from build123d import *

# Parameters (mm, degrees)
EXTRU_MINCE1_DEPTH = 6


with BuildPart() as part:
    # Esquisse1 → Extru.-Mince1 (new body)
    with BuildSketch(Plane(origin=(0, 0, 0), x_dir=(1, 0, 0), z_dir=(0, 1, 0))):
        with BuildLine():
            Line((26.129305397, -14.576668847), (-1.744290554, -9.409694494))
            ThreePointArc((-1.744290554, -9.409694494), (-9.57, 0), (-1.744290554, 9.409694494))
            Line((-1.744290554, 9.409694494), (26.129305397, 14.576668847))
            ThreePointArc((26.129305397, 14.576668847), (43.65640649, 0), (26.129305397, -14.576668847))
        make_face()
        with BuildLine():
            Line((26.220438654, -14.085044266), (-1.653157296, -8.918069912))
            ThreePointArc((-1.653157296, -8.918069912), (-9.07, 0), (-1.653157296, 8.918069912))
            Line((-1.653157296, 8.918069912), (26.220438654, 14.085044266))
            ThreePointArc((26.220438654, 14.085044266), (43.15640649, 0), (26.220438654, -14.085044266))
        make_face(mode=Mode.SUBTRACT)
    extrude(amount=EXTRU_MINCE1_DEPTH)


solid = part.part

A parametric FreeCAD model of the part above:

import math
import FreeCAD as App
import Part
import Sketcher

doc = App.newDocument("Part")
body = doc.addObject("PartDesign::Body", "Body")

sketch1 = doc.addObject("Sketcher::SketchObject", "Sketch")
body.addObject(sketch1)
sketch1.AttachmentSupport = (doc.XZ_Plane, [""])
sketch1.MapMode = "FlatFace"
sketch1.addGeometry([
    Part.LineSegment(App.Vector(-2, 9, 0), App.Vector(26, 15, 0)),
    Part.ArcOfCircle(Part.Circle(App.Vector(29, 0, 0), App.Vector(0, 0, 1), 15), math.radians(-101), math.radians(101)),
    Part.LineSegment(App.Vector(26, -15, 0), App.Vector(-2, -9, 0)),
    Part.ArcOfCircle(Part.Circle(App.Vector(0, 0, 0), App.Vector(0, 0, 1), 10), math.radians(101), math.radians(259)),
    Part.LineSegment(App.Vector(26, 14, 0), App.Vector(-2, 9, 0)),
    Part.ArcOfCircle(Part.Circle(App.Vector(0, 0, 0), App.Vector(0, 0, 1), 9), math.radians(101), math.radians(259)),
    Part.LineSegment(App.Vector(-2, -9, 0), App.Vector(26, -14, 0)),
    Part.ArcOfCircle(Part.Circle(App.Vector(29, 0, 0), App.Vector(0, 0, 1), 14), math.radians(-101), math.radians(101)),
], False)
sketch1.addConstraint([
    Sketcher.Constraint("Tangent", 0, 2, 1, 2),
    Sketcher.Constraint("Tangent", 1, 1, 2, 1),
    Sketcher.Constraint("Tangent", 2, 2, 3, 2),
    Sketcher.Constraint("Tangent", 3, 1, 0, 1),
    Sketcher.Constraint("Tangent", 4, 2, 5, 1),
    Sketcher.Constraint("Tangent", 5, 2, 6, 1),
    Sketcher.Constraint("Tangent", 6, 2, 7, 1),
    Sketcher.Constraint("Tangent", 7, 2, 4, 1),
    Sketcher.Constraint("Coincident", 3, 3, -1, 1),
    Sketcher.Constraint("Coincident", 5, 3, -1, 1),
    Sketcher.Constraint("Coincident", 7, 3, 1, 3),
    Sketcher.Constraint("PointOnObject", 1, 3, -1),
    Sketcher.Constraint("Parallel", 0, 4),
    Sketcher.Constraint("Radius", 3, 9.57),
    Sketcher.Constraint("Radius", 5, 9.07),
    Sketcher.Constraint("Radius", 1, 14.825),
    Sketcher.Constraint("DistanceX", 0, 2, 1, 3, 2.702101),
])
pad1 = doc.addObject("PartDesign::Pad", "Pad")
body.addObject(pad1)
pad1.Profile = sketch1
pad1.Length = 6
pad1.Reversed = True

doc.recompute()
